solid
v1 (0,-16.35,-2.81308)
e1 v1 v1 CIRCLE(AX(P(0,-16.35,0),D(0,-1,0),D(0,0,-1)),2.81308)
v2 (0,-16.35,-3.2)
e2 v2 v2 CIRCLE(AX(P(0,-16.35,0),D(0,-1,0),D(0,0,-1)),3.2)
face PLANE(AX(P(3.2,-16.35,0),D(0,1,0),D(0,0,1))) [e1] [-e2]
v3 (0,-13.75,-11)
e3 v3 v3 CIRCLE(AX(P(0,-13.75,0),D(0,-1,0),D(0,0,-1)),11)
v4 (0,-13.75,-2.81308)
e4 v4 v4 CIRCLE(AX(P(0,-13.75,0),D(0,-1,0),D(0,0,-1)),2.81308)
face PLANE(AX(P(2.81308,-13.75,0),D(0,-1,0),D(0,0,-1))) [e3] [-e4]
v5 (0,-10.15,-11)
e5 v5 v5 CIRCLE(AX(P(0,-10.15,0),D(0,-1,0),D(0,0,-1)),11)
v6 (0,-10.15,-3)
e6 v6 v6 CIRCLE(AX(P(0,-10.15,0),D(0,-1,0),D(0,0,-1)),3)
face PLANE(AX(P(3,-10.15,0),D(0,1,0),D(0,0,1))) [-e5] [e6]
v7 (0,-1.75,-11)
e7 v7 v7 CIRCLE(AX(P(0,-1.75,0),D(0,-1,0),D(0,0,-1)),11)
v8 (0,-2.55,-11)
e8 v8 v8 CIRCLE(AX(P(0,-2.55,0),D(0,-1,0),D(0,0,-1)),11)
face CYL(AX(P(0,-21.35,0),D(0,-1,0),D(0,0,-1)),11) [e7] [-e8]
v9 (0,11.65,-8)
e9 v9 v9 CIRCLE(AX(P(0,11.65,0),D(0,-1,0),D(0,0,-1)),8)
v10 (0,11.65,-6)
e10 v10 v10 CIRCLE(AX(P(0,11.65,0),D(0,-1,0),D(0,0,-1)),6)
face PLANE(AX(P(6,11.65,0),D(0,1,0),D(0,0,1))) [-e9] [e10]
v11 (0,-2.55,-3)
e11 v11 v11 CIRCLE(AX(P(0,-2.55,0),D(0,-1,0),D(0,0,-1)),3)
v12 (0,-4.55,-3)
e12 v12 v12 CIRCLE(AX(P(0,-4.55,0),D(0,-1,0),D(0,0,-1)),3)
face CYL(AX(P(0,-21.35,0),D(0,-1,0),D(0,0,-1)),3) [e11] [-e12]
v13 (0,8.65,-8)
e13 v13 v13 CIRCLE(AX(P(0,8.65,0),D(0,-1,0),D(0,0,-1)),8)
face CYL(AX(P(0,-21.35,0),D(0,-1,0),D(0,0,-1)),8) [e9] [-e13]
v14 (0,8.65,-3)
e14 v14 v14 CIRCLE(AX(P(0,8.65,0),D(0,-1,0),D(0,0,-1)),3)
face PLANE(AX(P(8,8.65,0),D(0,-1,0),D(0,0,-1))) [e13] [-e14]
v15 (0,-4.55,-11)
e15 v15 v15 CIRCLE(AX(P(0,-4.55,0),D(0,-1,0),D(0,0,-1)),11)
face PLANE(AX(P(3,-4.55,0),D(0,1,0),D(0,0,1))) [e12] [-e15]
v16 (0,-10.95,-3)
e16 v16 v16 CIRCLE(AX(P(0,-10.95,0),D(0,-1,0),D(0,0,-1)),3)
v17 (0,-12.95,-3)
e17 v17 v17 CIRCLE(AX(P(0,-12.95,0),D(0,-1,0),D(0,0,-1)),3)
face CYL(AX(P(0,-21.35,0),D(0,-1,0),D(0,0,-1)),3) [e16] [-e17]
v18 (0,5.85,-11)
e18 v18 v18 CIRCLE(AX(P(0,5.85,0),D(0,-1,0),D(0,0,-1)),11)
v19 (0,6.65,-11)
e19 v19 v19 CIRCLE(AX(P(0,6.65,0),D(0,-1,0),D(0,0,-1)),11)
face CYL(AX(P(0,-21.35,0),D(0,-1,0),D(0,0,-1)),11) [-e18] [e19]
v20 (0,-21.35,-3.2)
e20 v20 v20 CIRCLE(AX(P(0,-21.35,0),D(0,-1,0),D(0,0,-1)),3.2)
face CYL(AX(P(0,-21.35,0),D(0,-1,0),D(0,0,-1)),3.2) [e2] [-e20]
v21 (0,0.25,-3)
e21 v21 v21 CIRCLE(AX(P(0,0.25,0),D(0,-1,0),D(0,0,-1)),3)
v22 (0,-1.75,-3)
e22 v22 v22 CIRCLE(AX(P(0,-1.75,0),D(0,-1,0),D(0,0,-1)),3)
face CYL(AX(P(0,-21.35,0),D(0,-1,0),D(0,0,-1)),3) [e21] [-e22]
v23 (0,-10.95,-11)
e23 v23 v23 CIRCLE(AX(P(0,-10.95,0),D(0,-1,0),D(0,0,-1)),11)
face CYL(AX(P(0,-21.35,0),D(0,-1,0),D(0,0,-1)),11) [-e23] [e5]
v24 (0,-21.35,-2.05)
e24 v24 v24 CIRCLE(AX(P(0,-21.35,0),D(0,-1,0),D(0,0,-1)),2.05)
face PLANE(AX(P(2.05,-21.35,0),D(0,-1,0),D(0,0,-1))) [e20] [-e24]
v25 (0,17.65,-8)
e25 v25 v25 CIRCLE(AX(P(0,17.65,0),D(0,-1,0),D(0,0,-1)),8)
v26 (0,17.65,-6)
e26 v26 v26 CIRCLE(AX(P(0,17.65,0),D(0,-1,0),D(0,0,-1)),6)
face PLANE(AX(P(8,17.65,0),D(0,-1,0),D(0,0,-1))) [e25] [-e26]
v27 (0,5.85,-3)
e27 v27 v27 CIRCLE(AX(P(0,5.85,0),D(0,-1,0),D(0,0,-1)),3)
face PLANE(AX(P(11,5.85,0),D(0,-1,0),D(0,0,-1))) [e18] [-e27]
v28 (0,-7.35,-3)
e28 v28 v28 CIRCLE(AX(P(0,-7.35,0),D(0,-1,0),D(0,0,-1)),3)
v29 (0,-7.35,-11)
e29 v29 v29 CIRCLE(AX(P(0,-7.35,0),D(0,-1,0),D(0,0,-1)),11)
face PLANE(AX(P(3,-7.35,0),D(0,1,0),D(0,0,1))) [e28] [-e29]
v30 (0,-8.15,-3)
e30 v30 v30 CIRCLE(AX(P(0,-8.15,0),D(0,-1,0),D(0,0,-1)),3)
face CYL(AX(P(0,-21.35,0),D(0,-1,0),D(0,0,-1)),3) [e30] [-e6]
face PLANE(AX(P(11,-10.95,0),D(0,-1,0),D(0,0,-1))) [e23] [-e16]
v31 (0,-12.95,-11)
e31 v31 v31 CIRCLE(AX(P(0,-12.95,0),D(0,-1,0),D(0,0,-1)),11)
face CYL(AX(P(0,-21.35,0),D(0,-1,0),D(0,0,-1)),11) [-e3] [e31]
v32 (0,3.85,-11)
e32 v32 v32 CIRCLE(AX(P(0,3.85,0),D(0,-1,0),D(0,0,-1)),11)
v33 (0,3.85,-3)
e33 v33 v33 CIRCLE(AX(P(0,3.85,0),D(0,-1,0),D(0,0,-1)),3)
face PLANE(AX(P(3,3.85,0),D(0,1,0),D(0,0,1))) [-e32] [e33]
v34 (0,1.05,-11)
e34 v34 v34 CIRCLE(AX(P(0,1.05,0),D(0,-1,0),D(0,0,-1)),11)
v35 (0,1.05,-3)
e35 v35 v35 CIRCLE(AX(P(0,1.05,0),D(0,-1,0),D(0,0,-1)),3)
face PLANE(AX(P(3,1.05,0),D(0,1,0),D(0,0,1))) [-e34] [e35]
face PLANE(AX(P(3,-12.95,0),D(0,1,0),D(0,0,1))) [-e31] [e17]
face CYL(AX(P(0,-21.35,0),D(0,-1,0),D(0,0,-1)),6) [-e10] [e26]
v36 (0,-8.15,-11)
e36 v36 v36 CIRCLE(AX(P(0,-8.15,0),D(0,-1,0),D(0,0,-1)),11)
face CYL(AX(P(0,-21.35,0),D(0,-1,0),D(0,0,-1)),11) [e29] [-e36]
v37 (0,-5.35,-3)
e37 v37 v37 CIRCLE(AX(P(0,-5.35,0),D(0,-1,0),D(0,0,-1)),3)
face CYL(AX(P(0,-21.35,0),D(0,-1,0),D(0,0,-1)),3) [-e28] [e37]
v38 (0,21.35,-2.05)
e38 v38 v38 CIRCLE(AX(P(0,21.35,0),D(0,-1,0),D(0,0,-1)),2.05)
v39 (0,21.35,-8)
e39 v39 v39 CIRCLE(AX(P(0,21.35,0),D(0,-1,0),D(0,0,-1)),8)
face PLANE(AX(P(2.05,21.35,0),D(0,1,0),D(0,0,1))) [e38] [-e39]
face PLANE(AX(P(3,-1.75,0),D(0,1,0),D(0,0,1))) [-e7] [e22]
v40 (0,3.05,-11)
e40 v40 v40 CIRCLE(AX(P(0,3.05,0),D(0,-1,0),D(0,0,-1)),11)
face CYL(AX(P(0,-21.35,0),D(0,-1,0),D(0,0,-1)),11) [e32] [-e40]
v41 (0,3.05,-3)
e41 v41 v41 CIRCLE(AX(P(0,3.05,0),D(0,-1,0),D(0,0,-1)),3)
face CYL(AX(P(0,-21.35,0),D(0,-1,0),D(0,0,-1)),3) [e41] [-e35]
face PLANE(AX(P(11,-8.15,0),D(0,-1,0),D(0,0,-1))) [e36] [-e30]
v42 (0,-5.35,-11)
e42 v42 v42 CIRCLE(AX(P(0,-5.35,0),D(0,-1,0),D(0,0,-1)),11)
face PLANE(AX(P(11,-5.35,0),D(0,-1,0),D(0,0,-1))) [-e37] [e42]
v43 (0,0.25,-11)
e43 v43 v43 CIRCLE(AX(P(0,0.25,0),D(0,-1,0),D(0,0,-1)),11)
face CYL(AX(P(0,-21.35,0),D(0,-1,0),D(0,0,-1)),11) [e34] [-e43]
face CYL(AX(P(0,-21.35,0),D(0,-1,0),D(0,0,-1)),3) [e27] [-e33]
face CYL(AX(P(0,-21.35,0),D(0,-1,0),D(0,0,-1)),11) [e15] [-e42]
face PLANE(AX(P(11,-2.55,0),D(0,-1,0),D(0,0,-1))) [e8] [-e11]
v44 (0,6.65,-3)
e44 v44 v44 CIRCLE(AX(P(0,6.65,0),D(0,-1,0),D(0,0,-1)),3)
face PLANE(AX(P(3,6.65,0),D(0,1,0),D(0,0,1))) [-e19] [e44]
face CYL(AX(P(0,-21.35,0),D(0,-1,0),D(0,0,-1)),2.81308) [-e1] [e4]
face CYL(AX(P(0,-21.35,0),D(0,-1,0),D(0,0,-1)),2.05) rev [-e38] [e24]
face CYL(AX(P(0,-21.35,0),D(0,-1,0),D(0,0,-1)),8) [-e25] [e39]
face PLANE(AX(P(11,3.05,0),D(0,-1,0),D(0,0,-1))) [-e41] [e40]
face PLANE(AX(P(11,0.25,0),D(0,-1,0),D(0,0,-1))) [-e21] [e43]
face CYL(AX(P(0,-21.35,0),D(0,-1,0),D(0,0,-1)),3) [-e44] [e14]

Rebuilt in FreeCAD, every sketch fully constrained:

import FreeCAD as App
import Part
import Sketcher

V = App.Vector


def add_polygon(sketch, points):
    """Adds a closed chain of lines whose ends are joined by coincident constraints."""
    first, n = sketch.GeometryCount, len(points)
    for a, b in zip(points, points[1:] + points[:1]):
        sketch.addGeometry(Part.LineSegment(App.Vector(*a, 0), App.Vector(*b, 0)), False)
    for i in range(n):
        sketch.addConstraint(Sketcher.Constraint("Coincident", first + i, 2, first + (i + 1) % n, 1))

doc = App.newDocument("Part")
body = doc.addObject("PartDesign::Body", "Body")

# Sketch on XY plane
sketch1 = body.newObject("Sketcher::SketchObject", "Sketch")
sketch1.AttachmentSupport = (doc.getObject("XY_Plane"), [""])
sketch1.MapMode = "FlatFace"
add_polygon(sketch1, [(8, 21.35), (2.05, 21.35), (2.05, -21.35), (3.2, -21.35), (3.2, -16.35), (2.81308, -16.35), (2.81308, -13.75), (11, -13.75), (11, -12.95), (3, -12.95), (3, -10.95), (11, -10.95), (11, -10.15), (3, -10.15), (3, -8.15), (11, -8.15), (11, -7.35), (3, -7.35), (3, -5.35), (11, -5.35), (11, -4.55), (3, -4.55), (3, -2.55), (11, -2.55), (11, -1.75), (3, -1.75), (3, 0.25), (11, 0.25), (11, 1.05), (3, 1.05), (3, 3.05), (11, 3.05), (11, 3.85), (3, 3.85), (3, 5.85), (11, 5.85), (11, 6.65), (3, 6.65), (3, 8.65), (8, 8.65), (8, 11.65), (6, 11.65), (6, 17.65), (8, 17.65)])  # lines 0-43
sketch1.addConstraint(Sketcher.Constraint("Horizontal", 0))
sketch1.addConstraint(Sketcher.Constraint("Vertical", 1))
sketch1.addConstraint(Sketcher.Constraint("Horizontal", 2))
sketch1.addConstraint(Sketcher.Constraint("Vertical", 3))
sketch1.addConstraint(Sketcher.Constraint("Horizontal", 4))
sketch1.addConstraint(Sketcher.Constraint("Vertical", 5))
sketch1.addConstraint(Sketcher.Constraint("Horizontal", 6))
sketch1.addConstraint(Sketcher.Constraint("Vertical", 7))
sketch1.addConstraint(Sketcher.Constraint("Horizontal", 8))
sketch1.addConstraint(Sketcher.Constraint("Vertical", 9))
sketch1.addConstraint(Sketcher.Constraint("Horizontal", 10))
sketch1.addConstraint(Sketcher.Constraint("Vertical", 11))
sketch1.addConstraint(Sketcher.Constraint("Horizontal", 12))
sketch1.addConstraint(Sketcher.Constraint("Vertical", 13))
sketch1.addConstraint(Sketcher.Constraint("Horizontal", 14))
sketch1.addConstraint(Sketcher.Constraint("Vertical", 15))
sketch1.addConstraint(Sketcher.Constraint("Horizontal", 16))
sketch1.addConstraint(Sketcher.Constraint("Vertical", 17))
sketch1.addConstraint(Sketcher.Constraint("Horizontal", 18))
sketch1.addConstraint(Sketcher.Constraint("Vertical", 19))
sketch1.addConstraint(Sketcher.Constraint("Horizontal", 20))
sketch1.addConstraint(Sketcher.Constraint("Vertical", 21))
sketch1.addConstraint(Sketcher.Constraint("Horizontal", 22))
sketch1.addConstraint(Sketcher.Constraint("Vertical", 23))
sketch1.addConstraint(Sketcher.Constraint("Horizontal", 24))
sketch1.addConstraint(Sketcher.Constraint("Vertical", 25))
sketch1.addConstraint(Sketcher.Constraint("Horizontal", 26))
sketch1.addConstraint(Sketcher.Constraint("Vertical", 27))
sketch1.addConstraint(Sketcher.Constraint("Horizontal", 28))
sketch1.addConstraint(Sketcher.Constraint("Vertical", 29))
sketch1.addConstraint(Sketcher.Constraint("Horizontal", 30))
sketch1.addConstraint(Sketcher.Constraint("Vertical", 31))
sketch1.addConstraint(Sketcher.Constraint("Horizontal", 32))
sketch1.addConstraint(Sketcher.Constraint("Vertical", 33))
sketch1.addConstraint(Sketcher.Constraint("Horizontal", 34))
sketch1.addConstraint(Sketcher.Constraint("Vertical", 35))
sketch1.addConstraint(Sketcher.Constraint("Horizontal", 36))
sketch1.addConstraint(Sketcher.Constraint("Vertical", 37))
sketch1.addConstraint(Sketcher.Constraint("Horizontal", 38))
sketch1.addConstraint(Sketcher.Constraint("Vertical", 39))
sketch1.addConstraint(Sketcher.Constraint("Horizontal", 40))
sketch1.addConstraint(Sketcher.Constraint("Vertical", 41))
sketch1.addConstraint(Sketcher.Constraint("Horizontal", 42))
sketch1.addConstraint(Sketcher.Constraint("Vertical", 43))
sketch1.addConstraint(Sketcher.Constraint("Vertical", 7, 2, 10, 2))
sketch1.addConstraint(Sketcher.Constraint("Vertical", 9, 2, 12, 2))
sketch1.addConstraint(Sketcher.Constraint("Vertical", 11, 2, 14, 2))
sketch1.addConstraint(Sketcher.Constraint("Vertical", 13, 2, 16, 2))
sketch1.addConstraint(Sketcher.Constraint("Vertical", 15, 2, 18, 2))
sketch1.addConstraint(Sketcher.Constraint("Vertical", 17, 2, 20, 2))
sketch1.addConstraint(Sketcher.Constraint("Vertical", 19, 2, 22, 2))
sketch1.addConstraint(Sketcher.Constraint("Vertical", 21, 2, 24, 2))
sketch1.addConstraint(Sketcher.Constraint("Vertical", 23, 2, 26, 2))
sketch1.addConstraint(Sketcher.Constraint("Vertical", 25, 2, 28, 2))
sketch1.addConstraint(Sketcher.Constraint("Vertical", 27, 2, 30, 2))
sketch1.addConstraint(Sketcher.Constraint("Vertical", 29, 2, 32, 2))
sketch1.addConstraint(Sketcher.Constraint("Vertical", 31, 2, 34, 2))
sketch1.addConstraint(Sketcher.Constraint("Vertical", 33, 2, 36, 2))
sketch1.addConstraint(Sketcher.Constraint("Vertical", 39, 2, 42, 2))
sketch1.addConstraint(Sketcher.Constraint("Equal", 38, 3))
sketch1.addConstraint(Sketcher.Constraint("Equal", 42, 9))
sketch1.addConstraint(Sketcher.Constraint("Equal", 7, 11))
sketch1.addConstraint(Sketcher.Constraint("Equal", 9, 13))
sketch1.addConstraint(Sketcher.Constraint("Equal", 11, 15))
sketch1.addConstraint(Sketcher.Constraint("Equal", 13, 17))
sketch1.addConstraint(Sketcher.Constraint("Equal", 15, 19))
sketch1.addConstraint(Sketcher.Constraint("Equal", 17, 21))
sketch1.addConstraint(Sketcher.Constraint("Equal", 19, 23))
sketch1.addConstraint(Sketcher.Constraint("Equal", 21, 25))
sketch1.addConstraint(Sketcher.Constraint("Equal", 23, 27))
sketch1.addConstraint(Sketcher.Constraint("Equal", 25, 29))
sketch1.addConstraint(Sketcher.Constraint("Equal", 27, 31))
sketch1.addConstraint(Sketcher.Constraint("Equal", 29, 33))
sketch1.addConstraint(Sketcher.Constraint("Equal", 31, 35))
sketch1.addConstraint(Sketcher.Constraint("Equal", 33, 37))
sketch1.addConstraint(Sketcher.Constraint("DistanceX", 8, 2, 8, 1, 8.0))
sketch1.addConstraint(Sketcher.Constraint("DistanceX", 38, 1, 38, 2, 5.0))
sketch1.addConstraint(Sketcher.Constraint("DistanceX", 40, 2, 40, 1, 2.0))
sketch1.addConstraint(Sketcher.Constraint("DistanceY", 39, 1, 39, 2, 3.0))
sketch1.addConstraint(Sketcher.Constraint("DistanceY", 41, 1, 41, 2, 6.0))
sketch1.addConstraint(Sketcher.Constraint("DistanceY", 1, 2, 1, 1, 42.7))
sketch1.addConstraint(Sketcher.Constraint("DistanceY", 5, 1, 5, 2, 2.6))
sketch1.addConstraint(Sketcher.Constraint("DistanceY", 7, 1, 7, 2, 0.8))
sketch1.addConstraint(Sketcher.Constraint("DistanceX", -1, 1, 6, 2, 11.0))
sketch1.addConstraint(Sketcher.Constraint("DistanceX", 0, 2, 0, 1, 5.95))
sketch1.addConstraint(Sketcher.Constraint("DistanceX", 2, 1, 2, 2, 1.15))
sketch1.addConstraint(Sketcher.Constraint("DistanceY", -1, 1, 0, 2, 21.35))
sketch1.addConstraint(Sketcher.Constraint("DistanceX", 4, 2, 4, 1, 0.38692))
revolution = body.newObject("PartDesign::Revolution", "Revolution")
revolution.Profile = sketch1
revolution.ReferenceAxis = (sketch1, ["V_Axis"])
revolution.Angle = 360

doc.recompute()
